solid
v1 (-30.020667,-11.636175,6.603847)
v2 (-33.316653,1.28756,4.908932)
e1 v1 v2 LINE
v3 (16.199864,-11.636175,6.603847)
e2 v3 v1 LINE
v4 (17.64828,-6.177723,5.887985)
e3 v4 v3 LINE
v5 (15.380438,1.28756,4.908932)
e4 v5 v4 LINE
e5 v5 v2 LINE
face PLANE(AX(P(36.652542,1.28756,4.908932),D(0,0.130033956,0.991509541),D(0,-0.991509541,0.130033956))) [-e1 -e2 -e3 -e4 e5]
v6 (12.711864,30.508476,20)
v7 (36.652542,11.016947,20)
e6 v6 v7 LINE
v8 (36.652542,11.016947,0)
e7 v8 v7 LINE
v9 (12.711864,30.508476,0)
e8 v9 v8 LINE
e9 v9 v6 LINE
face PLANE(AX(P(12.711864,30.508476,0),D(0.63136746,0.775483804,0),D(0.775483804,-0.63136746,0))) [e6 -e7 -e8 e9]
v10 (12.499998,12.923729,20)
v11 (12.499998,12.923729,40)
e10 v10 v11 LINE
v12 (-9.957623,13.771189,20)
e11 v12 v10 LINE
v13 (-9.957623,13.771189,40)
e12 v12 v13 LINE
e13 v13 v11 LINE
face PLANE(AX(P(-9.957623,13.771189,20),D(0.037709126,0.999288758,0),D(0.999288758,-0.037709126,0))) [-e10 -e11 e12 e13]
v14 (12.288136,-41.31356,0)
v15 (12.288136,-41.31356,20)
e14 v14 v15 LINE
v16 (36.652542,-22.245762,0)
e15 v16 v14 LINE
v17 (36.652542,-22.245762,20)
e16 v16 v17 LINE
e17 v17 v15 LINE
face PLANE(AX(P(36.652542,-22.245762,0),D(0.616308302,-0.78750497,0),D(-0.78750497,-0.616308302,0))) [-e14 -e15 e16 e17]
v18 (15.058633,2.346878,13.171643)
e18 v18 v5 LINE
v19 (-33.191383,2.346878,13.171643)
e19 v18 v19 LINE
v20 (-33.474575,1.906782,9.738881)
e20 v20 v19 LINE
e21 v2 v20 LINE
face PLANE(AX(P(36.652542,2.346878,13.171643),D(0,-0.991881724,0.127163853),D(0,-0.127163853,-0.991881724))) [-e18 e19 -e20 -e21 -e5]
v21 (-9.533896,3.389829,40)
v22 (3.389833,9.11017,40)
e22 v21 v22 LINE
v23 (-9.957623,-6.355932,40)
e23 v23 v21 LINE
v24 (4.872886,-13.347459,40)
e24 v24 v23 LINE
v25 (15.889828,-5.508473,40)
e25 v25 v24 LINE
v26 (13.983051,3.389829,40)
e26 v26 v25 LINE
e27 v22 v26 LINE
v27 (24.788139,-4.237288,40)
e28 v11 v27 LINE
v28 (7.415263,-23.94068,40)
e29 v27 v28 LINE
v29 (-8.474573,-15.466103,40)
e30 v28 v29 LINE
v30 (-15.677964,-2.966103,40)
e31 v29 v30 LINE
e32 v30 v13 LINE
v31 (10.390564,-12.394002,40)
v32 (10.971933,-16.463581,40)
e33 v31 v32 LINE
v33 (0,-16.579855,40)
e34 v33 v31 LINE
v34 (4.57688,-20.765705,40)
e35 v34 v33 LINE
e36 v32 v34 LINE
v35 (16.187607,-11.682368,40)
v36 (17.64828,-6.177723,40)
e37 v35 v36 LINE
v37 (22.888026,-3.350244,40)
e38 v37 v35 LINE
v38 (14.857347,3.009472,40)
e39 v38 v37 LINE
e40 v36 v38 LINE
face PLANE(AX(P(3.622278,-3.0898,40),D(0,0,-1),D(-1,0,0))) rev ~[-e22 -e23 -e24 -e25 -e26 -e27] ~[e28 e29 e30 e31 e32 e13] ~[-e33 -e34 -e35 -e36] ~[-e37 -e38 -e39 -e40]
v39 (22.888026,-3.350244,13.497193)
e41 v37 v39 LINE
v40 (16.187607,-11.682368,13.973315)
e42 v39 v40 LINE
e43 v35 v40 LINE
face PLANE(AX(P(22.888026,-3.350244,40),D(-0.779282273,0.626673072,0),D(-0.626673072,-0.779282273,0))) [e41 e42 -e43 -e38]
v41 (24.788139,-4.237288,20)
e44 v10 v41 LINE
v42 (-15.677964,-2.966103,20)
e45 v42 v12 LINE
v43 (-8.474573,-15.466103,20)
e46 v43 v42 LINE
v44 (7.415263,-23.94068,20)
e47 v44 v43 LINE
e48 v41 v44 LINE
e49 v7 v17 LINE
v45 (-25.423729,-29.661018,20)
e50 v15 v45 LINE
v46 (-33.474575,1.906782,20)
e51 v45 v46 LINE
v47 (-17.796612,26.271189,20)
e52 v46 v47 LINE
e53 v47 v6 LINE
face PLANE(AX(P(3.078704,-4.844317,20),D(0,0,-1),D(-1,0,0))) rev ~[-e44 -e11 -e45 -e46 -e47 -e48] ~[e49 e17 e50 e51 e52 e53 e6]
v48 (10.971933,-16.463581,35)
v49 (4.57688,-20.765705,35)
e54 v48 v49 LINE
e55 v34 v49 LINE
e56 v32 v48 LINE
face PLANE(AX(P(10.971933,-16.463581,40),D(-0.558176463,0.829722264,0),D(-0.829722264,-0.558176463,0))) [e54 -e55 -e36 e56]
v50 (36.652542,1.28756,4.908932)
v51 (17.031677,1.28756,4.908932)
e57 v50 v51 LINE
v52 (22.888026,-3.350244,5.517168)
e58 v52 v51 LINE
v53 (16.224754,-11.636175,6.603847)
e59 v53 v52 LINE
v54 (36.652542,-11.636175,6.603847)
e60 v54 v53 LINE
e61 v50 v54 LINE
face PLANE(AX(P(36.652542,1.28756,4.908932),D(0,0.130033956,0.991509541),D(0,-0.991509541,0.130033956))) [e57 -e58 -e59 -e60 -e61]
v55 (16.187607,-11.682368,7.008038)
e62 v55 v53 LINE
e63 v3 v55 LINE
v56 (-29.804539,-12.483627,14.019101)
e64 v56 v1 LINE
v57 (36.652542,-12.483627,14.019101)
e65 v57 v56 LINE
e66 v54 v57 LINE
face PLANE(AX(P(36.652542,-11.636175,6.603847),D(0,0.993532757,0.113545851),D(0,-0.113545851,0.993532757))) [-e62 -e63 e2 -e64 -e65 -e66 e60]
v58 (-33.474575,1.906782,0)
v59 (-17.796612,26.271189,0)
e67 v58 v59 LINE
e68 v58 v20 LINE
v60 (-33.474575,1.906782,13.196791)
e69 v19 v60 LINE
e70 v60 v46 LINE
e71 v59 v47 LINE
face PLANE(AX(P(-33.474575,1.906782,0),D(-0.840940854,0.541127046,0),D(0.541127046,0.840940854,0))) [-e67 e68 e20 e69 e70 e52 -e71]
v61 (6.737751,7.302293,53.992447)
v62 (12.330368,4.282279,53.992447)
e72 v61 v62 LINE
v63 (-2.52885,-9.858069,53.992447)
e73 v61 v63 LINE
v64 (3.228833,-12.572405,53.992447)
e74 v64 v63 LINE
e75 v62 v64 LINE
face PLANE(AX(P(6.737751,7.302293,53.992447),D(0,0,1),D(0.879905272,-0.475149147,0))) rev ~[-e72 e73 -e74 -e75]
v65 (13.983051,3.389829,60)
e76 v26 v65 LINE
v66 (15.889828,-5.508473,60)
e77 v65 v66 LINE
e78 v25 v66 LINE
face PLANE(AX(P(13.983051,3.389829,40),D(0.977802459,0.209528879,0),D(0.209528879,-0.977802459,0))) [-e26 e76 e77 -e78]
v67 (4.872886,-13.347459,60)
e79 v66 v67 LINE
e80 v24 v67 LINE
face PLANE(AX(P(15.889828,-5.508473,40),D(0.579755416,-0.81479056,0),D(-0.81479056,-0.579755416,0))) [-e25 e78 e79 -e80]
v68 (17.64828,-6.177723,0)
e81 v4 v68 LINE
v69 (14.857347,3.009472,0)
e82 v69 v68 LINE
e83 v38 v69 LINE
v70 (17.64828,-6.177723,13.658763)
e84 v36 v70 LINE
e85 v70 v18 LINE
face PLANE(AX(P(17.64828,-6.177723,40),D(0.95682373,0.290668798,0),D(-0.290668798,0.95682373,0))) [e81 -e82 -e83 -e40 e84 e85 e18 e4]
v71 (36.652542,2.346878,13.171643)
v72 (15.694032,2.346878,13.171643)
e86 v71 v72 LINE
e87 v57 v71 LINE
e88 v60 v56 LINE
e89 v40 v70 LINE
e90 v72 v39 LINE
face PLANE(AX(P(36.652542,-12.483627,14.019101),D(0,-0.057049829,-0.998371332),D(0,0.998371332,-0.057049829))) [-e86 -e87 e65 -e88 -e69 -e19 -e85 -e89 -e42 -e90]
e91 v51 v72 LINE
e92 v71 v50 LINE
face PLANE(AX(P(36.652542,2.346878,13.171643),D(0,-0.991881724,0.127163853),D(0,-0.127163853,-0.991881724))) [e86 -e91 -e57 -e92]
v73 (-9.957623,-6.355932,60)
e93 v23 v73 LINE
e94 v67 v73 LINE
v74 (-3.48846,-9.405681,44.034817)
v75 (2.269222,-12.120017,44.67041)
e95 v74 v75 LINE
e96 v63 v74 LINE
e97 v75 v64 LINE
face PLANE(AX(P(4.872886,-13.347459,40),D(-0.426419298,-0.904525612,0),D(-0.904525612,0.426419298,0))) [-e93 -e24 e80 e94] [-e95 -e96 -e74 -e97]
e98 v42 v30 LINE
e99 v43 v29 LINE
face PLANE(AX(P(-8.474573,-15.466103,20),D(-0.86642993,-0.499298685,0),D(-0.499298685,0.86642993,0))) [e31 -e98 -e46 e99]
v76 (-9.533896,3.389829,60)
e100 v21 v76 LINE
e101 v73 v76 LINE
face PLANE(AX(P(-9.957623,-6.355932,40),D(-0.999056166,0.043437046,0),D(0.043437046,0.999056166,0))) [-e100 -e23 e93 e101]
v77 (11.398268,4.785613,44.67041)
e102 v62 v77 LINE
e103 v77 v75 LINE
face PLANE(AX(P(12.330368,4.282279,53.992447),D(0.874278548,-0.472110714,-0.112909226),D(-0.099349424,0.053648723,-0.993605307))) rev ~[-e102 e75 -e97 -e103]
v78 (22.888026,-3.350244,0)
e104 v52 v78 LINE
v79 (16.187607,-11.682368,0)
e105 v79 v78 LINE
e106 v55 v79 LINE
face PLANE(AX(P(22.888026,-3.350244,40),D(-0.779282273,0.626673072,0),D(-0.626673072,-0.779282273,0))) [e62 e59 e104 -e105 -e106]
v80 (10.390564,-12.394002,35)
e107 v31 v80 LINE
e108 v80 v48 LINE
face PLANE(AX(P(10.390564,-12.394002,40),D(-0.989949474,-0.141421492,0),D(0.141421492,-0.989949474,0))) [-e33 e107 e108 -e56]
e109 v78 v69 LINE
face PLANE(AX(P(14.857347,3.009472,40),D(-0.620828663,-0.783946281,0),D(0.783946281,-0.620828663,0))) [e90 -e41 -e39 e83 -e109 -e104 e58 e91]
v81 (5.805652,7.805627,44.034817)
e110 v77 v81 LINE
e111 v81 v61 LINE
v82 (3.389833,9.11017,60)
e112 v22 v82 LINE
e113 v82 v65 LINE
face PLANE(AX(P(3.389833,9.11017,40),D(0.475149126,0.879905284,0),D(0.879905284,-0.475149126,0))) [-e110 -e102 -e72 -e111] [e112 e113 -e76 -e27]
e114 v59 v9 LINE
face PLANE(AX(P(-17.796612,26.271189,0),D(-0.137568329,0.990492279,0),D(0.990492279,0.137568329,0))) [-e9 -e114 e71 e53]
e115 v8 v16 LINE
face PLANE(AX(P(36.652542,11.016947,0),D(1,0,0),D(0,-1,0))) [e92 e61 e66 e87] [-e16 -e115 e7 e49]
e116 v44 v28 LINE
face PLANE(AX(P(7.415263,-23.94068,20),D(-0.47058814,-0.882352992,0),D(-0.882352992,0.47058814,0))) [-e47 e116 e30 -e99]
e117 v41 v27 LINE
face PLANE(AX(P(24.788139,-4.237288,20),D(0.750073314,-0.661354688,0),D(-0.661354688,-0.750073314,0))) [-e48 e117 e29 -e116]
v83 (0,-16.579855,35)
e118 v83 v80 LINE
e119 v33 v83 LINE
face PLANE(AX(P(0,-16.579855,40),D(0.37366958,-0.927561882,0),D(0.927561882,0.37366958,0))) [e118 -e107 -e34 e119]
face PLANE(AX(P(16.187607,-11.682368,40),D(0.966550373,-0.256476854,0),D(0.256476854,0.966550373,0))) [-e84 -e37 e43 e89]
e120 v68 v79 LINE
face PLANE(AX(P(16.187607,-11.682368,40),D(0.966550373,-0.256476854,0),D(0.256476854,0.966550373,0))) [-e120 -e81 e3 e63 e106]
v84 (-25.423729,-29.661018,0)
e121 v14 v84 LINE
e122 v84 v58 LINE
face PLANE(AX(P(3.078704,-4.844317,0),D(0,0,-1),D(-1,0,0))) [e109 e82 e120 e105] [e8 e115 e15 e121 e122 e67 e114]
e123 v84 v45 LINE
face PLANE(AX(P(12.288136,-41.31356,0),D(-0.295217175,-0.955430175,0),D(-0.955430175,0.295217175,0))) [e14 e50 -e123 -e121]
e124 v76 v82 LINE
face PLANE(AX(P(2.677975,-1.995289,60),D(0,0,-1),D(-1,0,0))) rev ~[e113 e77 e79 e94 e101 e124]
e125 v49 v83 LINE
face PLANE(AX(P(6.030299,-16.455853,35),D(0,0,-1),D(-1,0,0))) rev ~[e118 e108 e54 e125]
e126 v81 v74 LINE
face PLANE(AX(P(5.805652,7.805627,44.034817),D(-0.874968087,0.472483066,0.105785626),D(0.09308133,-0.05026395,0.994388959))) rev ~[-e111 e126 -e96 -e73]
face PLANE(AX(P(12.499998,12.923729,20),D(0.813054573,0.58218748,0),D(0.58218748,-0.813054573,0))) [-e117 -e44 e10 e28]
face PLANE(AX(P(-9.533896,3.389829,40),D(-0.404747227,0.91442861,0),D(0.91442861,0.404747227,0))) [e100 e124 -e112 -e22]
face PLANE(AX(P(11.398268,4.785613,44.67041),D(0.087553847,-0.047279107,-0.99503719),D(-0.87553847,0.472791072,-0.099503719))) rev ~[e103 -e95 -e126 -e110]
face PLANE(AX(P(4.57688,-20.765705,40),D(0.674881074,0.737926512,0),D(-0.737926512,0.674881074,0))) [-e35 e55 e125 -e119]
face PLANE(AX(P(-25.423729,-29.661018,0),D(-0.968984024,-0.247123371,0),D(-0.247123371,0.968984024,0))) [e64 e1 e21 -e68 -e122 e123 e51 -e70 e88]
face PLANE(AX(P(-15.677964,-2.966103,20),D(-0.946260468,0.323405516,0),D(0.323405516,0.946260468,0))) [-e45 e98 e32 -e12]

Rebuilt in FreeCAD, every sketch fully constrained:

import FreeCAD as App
import Part
import Sketcher

V = App.Vector
Q = App.Units.Quantity

doc = App.newDocument("Part")
body = doc.addObject("PartDesign::Body", "Body")

# Sketch on XY plane
sketch1 = body.newObject("Sketcher::SketchObject", "Sketch")
sketch1.AttachmentSupport = (doc.getObject("XY_Plane"), [""])
sketch1.MapMode = "FlatFace"
sketch1.addGeometry(Part.LineSegment(V(12.711864, 30.508476, 0), V(-17.796612, 26.271189, 0)), False)
sketch1.addGeometry(Part.LineSegment(V(-17.796612, 26.271189, 0), V(-33.474575, 1.906782, 0)), False)
sketch1.addGeometry(Part.LineSegment(V(-33.474575, 1.906782, 0), V(-25.423729, -29.661018, 0)), False)
sketch1.addGeometry(Part.LineSegment(V(-25.423729, -29.661018, 0), V(12.288136, -41.31356, 0)), False)
sketch1.addGeometry(Part.LineSegment(V(12.288136, -41.31356, 0), V(36.652542, -22.245762, 0)), False)
sketch1.addGeometry(Part.LineSegment(V(36.652542, -22.245762, 0), V(36.652542, 11.016947, 0)), False)
sketch1.addGeometry(Part.LineSegment(V(36.652542, 11.016947, 0), V(12.711864, 30.508476, 0)), False)
sketch1.addConstraint(Sketcher.Constraint("Coincident", 0, 2, 1, 1))
sketch1.addConstraint(Sketcher.Constraint("Coincident", 1, 2, 2, 1))
sketch1.addConstraint(Sketcher.Constraint("Coincident", 2, 2, 3, 1))
sketch1.addConstraint(Sketcher.Constraint("Coincident", 3, 2, 4, 1))
sketch1.addConstraint(Sketcher.Constraint("Coincident", 4, 2, 5, 1))
sketch1.addConstraint(Sketcher.Constraint("Coincident", 5, 2, 6, 1))
sketch1.addConstraint(Sketcher.Constraint("Coincident", 6, 2, 0, 1))
sketch1.addConstraint(Sketcher.Constraint("Vertical", 5))
sketch1.addConstraint(Sketcher.Constraint("DistanceY", 5, 1, 5, 2, Q("33.262709 mm")))
sketch1.addConstraint(Sketcher.Constraint("DistanceY", 2, 2, 1, 2, Q("31.5678 mm")))
sketch1.addConstraint(Sketcher.Constraint("DistanceY", 3, 2, 4, 2, Q("19.067798 mm")))
sketch1.addConstraint(Sketcher.Constraint("DistanceX", 0, 2, -1, 1, Q("17.796612 mm")))
sketch1.addConstraint(Sketcher.Constraint("DistanceY", -1, 1, 0, 2, Q("26.271189 mm")))
sketch1.addConstraint(Sketcher.Constraint("DistanceX", 2, 2, -1, 1, Q("25.423729 mm")))
sketch1.addConstraint(Sketcher.Constraint("DistanceY", 3, 2, -1, 1, Q("41.31356 mm")))
sketch1.addConstraint(Sketcher.Constraint("DistanceX", -1, 1, 4, 2, Q("36.652542 mm")))
sketch1.addConstraint(Sketcher.Constraint("DistanceX", 1, 2, 3, 2, Q("45.762711 mm")))
sketch1.addConstraint(Sketcher.Constraint("DistanceY", 5, 2, 6, 2, Q("19.491529 mm")))
sketch1.addConstraint(Sketcher.Constraint("DistanceX", 1, 2, 6, 2, Q("46.186439 mm")))
sketch1.addConstraint(Sketcher.Constraint("Distance", 0, Q("30.801326 mm")))
sketch1.addConstraint(Sketcher.Constraint("Distance", 1, Q("28.972795 mm")))
pad1 = body.newObject("PartDesign::Pad", "Pad")
pad1.Profile = sketch1
pad1.Length = 20

# Sketch on XY plane
sketch2 = body.newObject("Sketcher::SketchObject", "Sketch001")
sketch2.AttachmentSupport = (doc.getObject("XY_Plane"), [""])
sketch2.MapMode = "FlatFace"
sketch2.AttachmentOffset = App.Placement(V(0, 0, 20), App.Rotation())
sketch2.addGeometry(Part.LineSegment(V(-15.677964, -2.966103, 0), V(-8.474573, -15.466103, 0)), False)
sketch2.addGeometry(Part.LineSegment(V(-8.474573, -15.466103, 0), V(7.415263, -23.94068, 0)), False)
sketch2.addGeometry(Part.LineSegment(V(7.415263, -23.94068, 0), V(24.788139, -4.237288, 0)), False)
sketch2.addGeometry(Part.LineSegment(V(24.788139, -4.237288, 0), V(12.499998, 12.923729, 0)), False)
sketch2.addGeometry(Part.LineSegment(V(12.499998, 12.923729, 0), V(-9.957623, 13.771189, 0)), False)
sketch2.addGeometry(Part.LineSegment(V(-9.957623, 13.771189, 0), V(-15.677964, -2.966103, 0)), False)
sketch2.addConstraint(Sketcher.Constraint("Coincident", 0, 2, 1, 1))
sketch2.addConstraint(Sketcher.Constraint("Coincident", 1, 2, 2, 1))
sketch2.addConstraint(Sketcher.Constraint("Coincident", 2, 2, 3, 1))
sketch2.addConstraint(Sketcher.Constraint("Coincident", 3, 2, 4, 1))
sketch2.addConstraint(Sketcher.Constraint("Coincident", 4, 2, 5, 1))
sketch2.addConstraint(Sketcher.Constraint("Coincident", 5, 2, 0, 1))
sketch2.addConstraint(Sketcher.Constraint("DistanceY", 0, 2, 5, 2, Q("12.5 mm")))
sketch2.addConstraint(Sketcher.Constraint("Distance", 1, Q("18.00848 mm")))
sketch2.addConstraint(Sketcher.Constraint("Distance", 2, Q("26.268622 mm")))
sketch2.addConstraint(Sketcher.Constraint("DistanceY", 1, 2, -1, 1, Q("23.94068 mm")))
sketch2.addConstraint(Sketcher.Constraint("DistanceX", -1, 1, 2, 2, Q("24.788139 mm")))
sketch2.addConstraint(Sketcher.Constraint("DistanceY", 2, 2, -1, 1, Q("4.237288 mm")))
sketch2.addConstraint(Sketcher.Constraint("DistanceY", -1, 1, 3, 2, Q("12.923729 mm")))
sketch2.addConstraint(Sketcher.Constraint("DistanceY", -1, 1, 4, 2, Q("13.771189 mm")))
sketch2.addConstraint(Sketcher.Constraint("DistanceX", 3, 2, 2, 2, Q("12.288141 mm")))
sketch2.addConstraint(Sketcher.Constraint("DistanceX", 0, 2, 3, 2, Q("20.974571 mm")))
sketch2.addConstraint(Sketcher.Constraint("DistanceX", 4, 2, 3, 2, Q("22.457621 mm")))
sketch2.addConstraint(Sketcher.Constraint("DistanceX", 5, 2, 0, 2, Q("7.203391 mm")))
pad2 = body.newObject("PartDesign::Pad", "Pad001")
pad2.Profile = sketch2
pad2.Length = 20

# Sketch on XY plane
sketch3 = body.newObject("Sketcher::SketchObject", "Sketch002")
sketch3.AttachmentSupport = (doc.getObject("XY_Plane"), [""])
sketch3.MapMode = "FlatFace"
sketch3.AttachmentOffset = App.Placement(V(0, 0, 40), App.Rotation())
sketch3.addGeometry(Part.LineSegment(V(-9.957623, -6.355932, 0), V(4.872886, -13.347459, 0)), False)
sketch3.addGeometry(Part.LineSegment(V(4.872886, -13.347459, 0), V(15.889828, -5.508473, 0)), False)
sketch3.addGeometry(Part.LineSegment(V(15.889828, -5.508473, 0), V(13.983051, 3.389829, 0)), False)
sketch3.addGeometry(Part.LineSegment(V(13.983051, 3.389829, 0), V(3.389833, 9.11017, 0)), False)
sketch3.addGeometry(Part.LineSegment(V(3.389833, 9.11017, 0), V(-9.533896, 3.389829, 0)), False)
sketch3.addGeometry(Part.LineSegment(V(-9.533896, 3.389829, 0), V(-9.957623, -6.355932, 0)), False)
sketch3.addConstraint(Sketcher.Constraint("Coincident", 0, 2, 1, 1))
sketch3.addConstraint(Sketcher.Constraint("Coincident", 1, 2, 2, 1))
sketch3.addConstraint(Sketcher.Constraint("Coincident", 2, 2, 3, 1))
sketch3.addConstraint(Sketcher.Constraint("Coincident", 3, 2, 4, 1))
sketch3.addConstraint(Sketcher.Constraint("Coincident", 4, 2, 5, 1))
sketch3.addConstraint(Sketcher.Constraint("Coincident", 5, 2, 0, 1))
sketch3.addConstraint(Sketcher.Constraint("Horizontal", 2, 2, 4, 2))
sketch3.addConstraint(Sketcher.Constraint("DistanceY", 5, 2, 3, 2, Q("15.466102 mm")))
sketch3.addConstraint(Sketcher.Constraint("Distance", 4, Q("14.13312 mm")))
sketch3.addConstraint(Sketcher.Constraint("Distance", 5, Q("9.754968 mm")))
sketch3.addConstraint(Sketcher.Constraint("DistanceY", 0, 2, -1, 1, Q("13.347459 mm")))
sketch3.addConstraint(Sketcher.Constraint("DistanceX", -1, 1, 2, 2, Q("13.983051 mm")))
sketch3.addConstraint(Sketcher.Constraint("DistanceY", -1, 1, 2, 2, Q("3.389829 mm")))
sketch3.addConstraint(Sketcher.Constraint("DistanceY", -1, 1, 3, 2, Q("9.11017 mm")))
sketch3.addConstraint(Sketcher.Constraint("DistanceX", 5, 2, 0, 2, Q("14.830509 mm")))
sketch3.addConstraint(Sketcher.Constraint("DistanceX", 5, 2, 1, 2, Q("25.847451 mm")))
sketch3.addConstraint(Sketcher.Constraint("DistanceY", 5, 2, 1, 2, Q("0.847459 mm")))
sketch3.addConstraint(Sketcher.Constraint("Distance", 2, Q("9.100306 mm")))
pad3 = body.newObject("PartDesign::Pad", "Pad002")
pad3.Profile = sketch3
pad3.Length = 20

# Sketch on XY plane
sketch4 = body.newObject("Sketcher::SketchObject", "Sketch003")
sketch4.AttachmentSupport = (doc.getObject("XY_Plane"), [""])
sketch4.MapMode = "FlatFace"
sketch4.AttachmentOffset = App.Placement(V(0, 0, 40), App.Rotation())
sketch4.addGeometry(Part.LineSegment(V(0, -16.579855, 0), V(4.57688, -20.765705, 0)), False)
sketch4.addGeometry(Part.LineSegment(V(4.57688, -20.765705, 0), V(10.971933, -16.463581, 0)), False)
sketch4.addGeometry(Part.LineSegment(V(10.971933, -16.463581, 0), V(10.390564, -12.394002, 0)), False)
sketch4.addGeometry(Part.LineSegment(V(10.390564, -12.394002, 0), V(0, -16.579855, 0)), False)
sketch4.addConstraint(Sketcher.Constraint("Coincident", 0, 2, 1, 1))
sketch4.addConstraint(Sketcher.Constraint("Coincident", 1, 2, 2, 1))
sketch4.addConstraint(Sketcher.Constraint("Coincident", 2, 2, 3, 1))
sketch4.addConstraint(Sketcher.Constraint("Coincident", 3, 2, 0, 1))
sketch4.addConstraint(Sketcher.Constraint("PointOnObject", 3, 2, -2))
sketch4.addConstraint(Sketcher.Constraint("DistanceX", -1, 1, 0, 2, Q("4.57688 mm")))
sketch4.addConstraint(Sketcher.Constraint("DistanceY", 1, 2, -1, 1, Q("16.463581 mm")))
sketch4.addConstraint(Sketcher.Constraint("DistanceX", 2, 2, 1, 2, Q("0.581369 mm")))
sketch4.addConstraint(Sketcher.Constraint("DistanceY", 1, 2, 2, 2, Q("4.069579 mm")))
sketch4.addConstraint(Sketcher.Constraint("DistanceY", 0, 2, 3, 2, Q("4.18585 mm")))
sketch4.addConstraint(Sketcher.Constraint("Distance", 1, Q("7.707462 mm")))
sketch4.addConstraint(Sketcher.Constraint("Distance", 3, Q("11.202017 mm")))
pocket1 = body.newObject("PartDesign::Pocket", "Pocket")
pocket1.Profile = sketch4
pocket1.Length = 5

# Sketch on XY plane
sketch5 = body.newObject("Sketcher::SketchObject", "Sketch004")
sketch5.AttachmentSupport = (doc.getObject("XY_Plane"), [""])
sketch5.MapMode = "FlatFace"
sketch5.AttachmentOffset = App.Placement(V(0, 0, 40), App.Rotation())
sketch5.addGeometry(Part.LineSegment(V(14.857347, 3.009472, 0), V(17.64828, -6.177723, 0)), False)
sketch5.addGeometry(Part.LineSegment(V(17.64828, -6.177723, 0), V(16.187607, -11.682368, 0)), False)
sketch5.addGeometry(Part.LineSegment(V(16.187607, -11.682368, 0), V(22.888026, -3.350244, 0)), False)
sketch5.addGeometry(Part.LineSegment(V(22.888026, -3.350244, 0), V(14.857347, 3.009472, 0)), False)
sketch5.addConstraint(Sketcher.Constraint("Coincident", 0, 2, 1, 1))
sketch5.addConstraint(Sketcher.Constraint("Coincident", 1, 2, 2, 1))
sketch5.addConstraint(Sketcher.Constraint("Coincident", 2, 2, 3, 1))
sketch5.addConstraint(Sketcher.Constraint("Coincident", 3, 2, 0, 1))
sketch5.addConstraint(Sketcher.Constraint("Distance", 2, Q("10.692049 mm")))
sketch5.addConstraint(Sketcher.Constraint("DistanceX", -1, 1, 0, 2, Q("17.64828 mm")))
sketch5.addConstraint(Sketcher.Constraint("DistanceY", 0, 2, 2, 2, Q("2.827479 mm")))
sketch5.addConstraint(Sketcher.Constraint("DistanceX", 1, 2, 2, 2, Q("6.700419 mm")))
sketch5.addConstraint(Sketcher.Constraint("DistanceX", 3, 2, 2, 2, Q("8.030679 mm")))
sketch5.addConstraint(Sketcher.Constraint("DistanceY", 1, 2, 3, 2, Q("14.69184 mm")))
sketch5.addConstraint(Sketcher.Constraint("Distance", 0, Q("9.601763 mm")))
sketch5.addConstraint(Sketcher.Constraint("DistanceY", 0, 2, -1, 1, Q("6.177723 mm")))
pocket2 = body.newObject("PartDesign::Pocket", "Pocket001")
pocket2.Profile = sketch5
pocket2.Type = "ThroughAll"

# Sketch on an angled plane
sketch6 = body.newObject("Sketcher::SketchObject", "Sketch005")
sketch6.Placement = App.Placement(V(4.574148, 8.47064, 0), App.Rotation(V(-0.879905272, 0.475149147, 0), V(0, 0, 1), V(0.475149147, 0.879905272, 0), "ZXY"))
sketch6.addGeometry(Part.LineSegment(V(-8.814835, 53.992447, 0), V(-7.755517, 44.67041, 0)), False)
sketch6.addGeometry(Part.LineSegment(V(-7.755517, 44.67041, 0), V(-1.399587, 44.034817, 0)), False)
sketch6.addGeometry(Part.LineSegment(V(-1.399587, 44.034817, 0), V(-2.458905, 53.992447, 0)), False)
sketch6.addGeometry(Part.LineSegment(V(-2.458905, 53.992447, 0), V(-8.814835, 53.992447, 0)), False)
sketch6.addConstraint(Sketcher.Constraint("Coincident", 0, 2, 1, 1))
sketch6.addConstraint(Sketcher.Constraint("Coincident", 1, 2, 2, 1))
sketch6.addConstraint(Sketcher.Constraint("Coincident", 2, 2, 3, 1))
sketch6.addConstraint(Sketcher.Constraint("Coincident", 3, 2, 0, 1))
sketch6.addConstraint(Sketcher.Constraint("Horizontal", 3))
sketch6.addConstraint(Sketcher.Constraint("DistanceX", 3, 2, 3, 1, Q("6.35593 mm")))
sketch6.addConstraint(Sketcher.Constraint("Distance", 1, Q("6.387631 mm")))
sketch6.addConstraint(Sketcher.Constraint("DistanceY", -1, 1, 0, 2, Q("44.67041 mm")))
sketch6.addConstraint(Sketcher.Constraint("DistanceX", 0, 2, 1, 2, Q("6.35593 mm")))
sketch6.addConstraint(Sketcher.Constraint("DistanceY", 1, 2, 2, 2, Q("9.95763 mm")))
sketch6.addConstraint(Sketcher.Constraint("DistanceX", 0, 2, 2, 2, Q("5.296612 mm")))
sketch6.addConstraint(Sketcher.Constraint("DistanceX", 0, 2, -1, 1, Q("7.755517 mm")))
pocket3 = body.newObject("PartDesign::Pocket", "Pocket002")
pocket3.Profile = sketch6
pocket3.Type = "ThroughAll"

# Sketch on YZ plane
sketch7 = body.newObject("Sketcher::SketchObject", "Sketch006")
sketch7.AttachmentSupport = (doc.getObject("YZ_Plane"), [""])
sketch7.MapMode = "FlatFace"
sketch7.AttachmentOffset = App.Placement(V(0, 0, 36.652542), App.Rotation())
sketch7.addGeometry(Part.LineSegment(V(-12.483627, 14.019101, 0), V(-11.636175, 6.603847, 0)), False)
sketch7.addGeometry(Part.LineSegment(V(-11.636175, 6.603847, 0), V(1.28756, 4.908932, 0)), False)
sketch7.addGeometry(Part.LineSegment(V(1.28756, 4.908932, 0), V(2.346878, 13.171643, 0)), False)
sketch7.addGeometry(Part.LineSegment(V(2.346878, 13.171643, 0), V(-12.483627, 14.019101, 0)), False)
sketch7.addConstraint(Sketcher.Constraint("Coincident", 0, 2, 1, 1))
sketch7.addConstraint(Sketcher.Constraint("Coincident", 1, 2, 2, 1))
sketch7.addConstraint(Sketcher.Constraint("Coincident", 2, 2, 3, 1))
sketch7.addConstraint(Sketcher.Constraint("Coincident", 3, 2, 0, 1))
sketch7.addConstraint(Sketcher.Constraint("Distance", 3, Q("14.854698 mm")))
sketch7.addConstraint(Sketcher.Constraint("DistanceY", -1, 1, 3, 2, Q("14.019101 mm")))
sketch7.addConstraint(Sketcher.Constraint("Distance", 2, Q("8.330339 mm")))
sketch7.addConstraint(Sketcher.Constraint("DistanceX", -1, 1, 1, 2, Q("1.28756 mm")))
sketch7.addConstraint(Sketcher.Constraint("DistanceY", 1, 2, 2, 2, Q("8.262711 mm")))
sketch7.addConstraint(Sketcher.Constraint("DistanceY", 1, 2, 3, 2, Q("9.110169 mm")))
sketch7.addConstraint(Sketcher.Constraint("Distance", 0, Q("7.463522 mm")))
sketch7.addConstraint(Sketcher.Constraint("Distance", 1, Q("13.034403 mm")))
pocket4 = body.newObject("PartDesign::Pocket", "Pocket003")
pocket4.Profile = sketch7
pocket4.Type = "ThroughAll"

doc.recompute()
